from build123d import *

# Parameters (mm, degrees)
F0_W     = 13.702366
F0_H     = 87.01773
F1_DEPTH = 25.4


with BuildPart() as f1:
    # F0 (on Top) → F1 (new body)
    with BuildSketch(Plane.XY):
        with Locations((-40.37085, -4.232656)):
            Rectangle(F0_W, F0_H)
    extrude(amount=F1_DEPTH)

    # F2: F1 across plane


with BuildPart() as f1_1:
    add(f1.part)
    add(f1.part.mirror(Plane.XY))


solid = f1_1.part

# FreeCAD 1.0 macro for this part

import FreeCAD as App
import Part
import Sketcher


def add_polygon(sketch, points):
    """Adds a closed chain of lines whose ends are joined by coincident constraints."""
    first, n = sketch.GeometryCount, len(points)
    for a, b in zip(points, points[1:] + points[:1]):
        sketch.addGeometry(Part.LineSegment(App.Vector(*a, 0), App.Vector(*b, 0)), False)
    for i in range(n):
        sketch.addConstraint(Sketcher.Constraint("Coincident", first + i, 2, first + (i + 1) % n, 1))

doc = App.newDocument("Part")
params = doc.addObject("Spreadsheet::Sheet", "Params")
for row, (alias, value) in enumerate([
    ("pad1_length", "1 in"),
], start=1):
    params.set(f"A{row}", alias)
    params.set(f"B{row}", "=" + value)
    params.setAlias(f"B{row}", alias)

body = doc.addObject("PartDesign::Body", "Body")

# Sketch on XY plane
sketch1 = body.newObject("Sketcher::SketchObject", "Sketch")
sketch1.AttachmentSupport = (doc.getObject("XY_Plane"), [""])
sketch1.MapMode = "FlatFace"
add_polygon(sketch1, [(-47, 39), (-47, -48), (-34, -48), (-34, 39)])  # lines 0-3
sketch1.addConstraint(Sketcher.Constraint("Vertical", 0))
sketch1.addConstraint(Sketcher.Constraint("Horizontal", 1))
sketch1.addConstraint(Sketcher.Constraint("Vertical", 2))
sketch1.addConstraint(Sketcher.Constraint("Horizontal", 3))
sketch1.addConstraint(Sketcher.Constraint("DistanceY", 0, 2, 0, 1, 87.01773))
sketch1.addConstraint(Sketcher.Constraint("DistanceX", 1, 1, 1, 2, 13.702366))
sketch1.addConstraint(Sketcher.Constraint("DistanceY", 0, 2, -1, 1, 47.741521))
sketch1.addConstraint(Sketcher.Constraint("DistanceX", 0, 2, -1, 1, 47.222033))
pad1 = body.newObject("PartDesign::Pad", "Pad")
pad1.Profile = sketch1
pad1.setExpression("Length", "Params.pad1_length")
body2 = doc.addObject("PartDesign::Body", "Body001")
doc.recompute()

body2.BaseFeature = body
doc.recompute()

mirroring = doc.addObject("Part::Mirroring", "Mirroring")
mirroring.Source = body
mirroring.Base = App.Vector(0, 0, 0)
mirroring.Normal = App.Vector(0, 0, 1)
body3 = doc.addObject("PartDesign::Body", "Body002")
body3.BaseFeature = mirroring
boolean = body2.newObject("PartDesign::Boolean", "Boolean")
boolean.Type = "Fuse"
boolean.addObjects([body3])
doc.recompute()
mirroring.Visibility = False

doc.recompute()
